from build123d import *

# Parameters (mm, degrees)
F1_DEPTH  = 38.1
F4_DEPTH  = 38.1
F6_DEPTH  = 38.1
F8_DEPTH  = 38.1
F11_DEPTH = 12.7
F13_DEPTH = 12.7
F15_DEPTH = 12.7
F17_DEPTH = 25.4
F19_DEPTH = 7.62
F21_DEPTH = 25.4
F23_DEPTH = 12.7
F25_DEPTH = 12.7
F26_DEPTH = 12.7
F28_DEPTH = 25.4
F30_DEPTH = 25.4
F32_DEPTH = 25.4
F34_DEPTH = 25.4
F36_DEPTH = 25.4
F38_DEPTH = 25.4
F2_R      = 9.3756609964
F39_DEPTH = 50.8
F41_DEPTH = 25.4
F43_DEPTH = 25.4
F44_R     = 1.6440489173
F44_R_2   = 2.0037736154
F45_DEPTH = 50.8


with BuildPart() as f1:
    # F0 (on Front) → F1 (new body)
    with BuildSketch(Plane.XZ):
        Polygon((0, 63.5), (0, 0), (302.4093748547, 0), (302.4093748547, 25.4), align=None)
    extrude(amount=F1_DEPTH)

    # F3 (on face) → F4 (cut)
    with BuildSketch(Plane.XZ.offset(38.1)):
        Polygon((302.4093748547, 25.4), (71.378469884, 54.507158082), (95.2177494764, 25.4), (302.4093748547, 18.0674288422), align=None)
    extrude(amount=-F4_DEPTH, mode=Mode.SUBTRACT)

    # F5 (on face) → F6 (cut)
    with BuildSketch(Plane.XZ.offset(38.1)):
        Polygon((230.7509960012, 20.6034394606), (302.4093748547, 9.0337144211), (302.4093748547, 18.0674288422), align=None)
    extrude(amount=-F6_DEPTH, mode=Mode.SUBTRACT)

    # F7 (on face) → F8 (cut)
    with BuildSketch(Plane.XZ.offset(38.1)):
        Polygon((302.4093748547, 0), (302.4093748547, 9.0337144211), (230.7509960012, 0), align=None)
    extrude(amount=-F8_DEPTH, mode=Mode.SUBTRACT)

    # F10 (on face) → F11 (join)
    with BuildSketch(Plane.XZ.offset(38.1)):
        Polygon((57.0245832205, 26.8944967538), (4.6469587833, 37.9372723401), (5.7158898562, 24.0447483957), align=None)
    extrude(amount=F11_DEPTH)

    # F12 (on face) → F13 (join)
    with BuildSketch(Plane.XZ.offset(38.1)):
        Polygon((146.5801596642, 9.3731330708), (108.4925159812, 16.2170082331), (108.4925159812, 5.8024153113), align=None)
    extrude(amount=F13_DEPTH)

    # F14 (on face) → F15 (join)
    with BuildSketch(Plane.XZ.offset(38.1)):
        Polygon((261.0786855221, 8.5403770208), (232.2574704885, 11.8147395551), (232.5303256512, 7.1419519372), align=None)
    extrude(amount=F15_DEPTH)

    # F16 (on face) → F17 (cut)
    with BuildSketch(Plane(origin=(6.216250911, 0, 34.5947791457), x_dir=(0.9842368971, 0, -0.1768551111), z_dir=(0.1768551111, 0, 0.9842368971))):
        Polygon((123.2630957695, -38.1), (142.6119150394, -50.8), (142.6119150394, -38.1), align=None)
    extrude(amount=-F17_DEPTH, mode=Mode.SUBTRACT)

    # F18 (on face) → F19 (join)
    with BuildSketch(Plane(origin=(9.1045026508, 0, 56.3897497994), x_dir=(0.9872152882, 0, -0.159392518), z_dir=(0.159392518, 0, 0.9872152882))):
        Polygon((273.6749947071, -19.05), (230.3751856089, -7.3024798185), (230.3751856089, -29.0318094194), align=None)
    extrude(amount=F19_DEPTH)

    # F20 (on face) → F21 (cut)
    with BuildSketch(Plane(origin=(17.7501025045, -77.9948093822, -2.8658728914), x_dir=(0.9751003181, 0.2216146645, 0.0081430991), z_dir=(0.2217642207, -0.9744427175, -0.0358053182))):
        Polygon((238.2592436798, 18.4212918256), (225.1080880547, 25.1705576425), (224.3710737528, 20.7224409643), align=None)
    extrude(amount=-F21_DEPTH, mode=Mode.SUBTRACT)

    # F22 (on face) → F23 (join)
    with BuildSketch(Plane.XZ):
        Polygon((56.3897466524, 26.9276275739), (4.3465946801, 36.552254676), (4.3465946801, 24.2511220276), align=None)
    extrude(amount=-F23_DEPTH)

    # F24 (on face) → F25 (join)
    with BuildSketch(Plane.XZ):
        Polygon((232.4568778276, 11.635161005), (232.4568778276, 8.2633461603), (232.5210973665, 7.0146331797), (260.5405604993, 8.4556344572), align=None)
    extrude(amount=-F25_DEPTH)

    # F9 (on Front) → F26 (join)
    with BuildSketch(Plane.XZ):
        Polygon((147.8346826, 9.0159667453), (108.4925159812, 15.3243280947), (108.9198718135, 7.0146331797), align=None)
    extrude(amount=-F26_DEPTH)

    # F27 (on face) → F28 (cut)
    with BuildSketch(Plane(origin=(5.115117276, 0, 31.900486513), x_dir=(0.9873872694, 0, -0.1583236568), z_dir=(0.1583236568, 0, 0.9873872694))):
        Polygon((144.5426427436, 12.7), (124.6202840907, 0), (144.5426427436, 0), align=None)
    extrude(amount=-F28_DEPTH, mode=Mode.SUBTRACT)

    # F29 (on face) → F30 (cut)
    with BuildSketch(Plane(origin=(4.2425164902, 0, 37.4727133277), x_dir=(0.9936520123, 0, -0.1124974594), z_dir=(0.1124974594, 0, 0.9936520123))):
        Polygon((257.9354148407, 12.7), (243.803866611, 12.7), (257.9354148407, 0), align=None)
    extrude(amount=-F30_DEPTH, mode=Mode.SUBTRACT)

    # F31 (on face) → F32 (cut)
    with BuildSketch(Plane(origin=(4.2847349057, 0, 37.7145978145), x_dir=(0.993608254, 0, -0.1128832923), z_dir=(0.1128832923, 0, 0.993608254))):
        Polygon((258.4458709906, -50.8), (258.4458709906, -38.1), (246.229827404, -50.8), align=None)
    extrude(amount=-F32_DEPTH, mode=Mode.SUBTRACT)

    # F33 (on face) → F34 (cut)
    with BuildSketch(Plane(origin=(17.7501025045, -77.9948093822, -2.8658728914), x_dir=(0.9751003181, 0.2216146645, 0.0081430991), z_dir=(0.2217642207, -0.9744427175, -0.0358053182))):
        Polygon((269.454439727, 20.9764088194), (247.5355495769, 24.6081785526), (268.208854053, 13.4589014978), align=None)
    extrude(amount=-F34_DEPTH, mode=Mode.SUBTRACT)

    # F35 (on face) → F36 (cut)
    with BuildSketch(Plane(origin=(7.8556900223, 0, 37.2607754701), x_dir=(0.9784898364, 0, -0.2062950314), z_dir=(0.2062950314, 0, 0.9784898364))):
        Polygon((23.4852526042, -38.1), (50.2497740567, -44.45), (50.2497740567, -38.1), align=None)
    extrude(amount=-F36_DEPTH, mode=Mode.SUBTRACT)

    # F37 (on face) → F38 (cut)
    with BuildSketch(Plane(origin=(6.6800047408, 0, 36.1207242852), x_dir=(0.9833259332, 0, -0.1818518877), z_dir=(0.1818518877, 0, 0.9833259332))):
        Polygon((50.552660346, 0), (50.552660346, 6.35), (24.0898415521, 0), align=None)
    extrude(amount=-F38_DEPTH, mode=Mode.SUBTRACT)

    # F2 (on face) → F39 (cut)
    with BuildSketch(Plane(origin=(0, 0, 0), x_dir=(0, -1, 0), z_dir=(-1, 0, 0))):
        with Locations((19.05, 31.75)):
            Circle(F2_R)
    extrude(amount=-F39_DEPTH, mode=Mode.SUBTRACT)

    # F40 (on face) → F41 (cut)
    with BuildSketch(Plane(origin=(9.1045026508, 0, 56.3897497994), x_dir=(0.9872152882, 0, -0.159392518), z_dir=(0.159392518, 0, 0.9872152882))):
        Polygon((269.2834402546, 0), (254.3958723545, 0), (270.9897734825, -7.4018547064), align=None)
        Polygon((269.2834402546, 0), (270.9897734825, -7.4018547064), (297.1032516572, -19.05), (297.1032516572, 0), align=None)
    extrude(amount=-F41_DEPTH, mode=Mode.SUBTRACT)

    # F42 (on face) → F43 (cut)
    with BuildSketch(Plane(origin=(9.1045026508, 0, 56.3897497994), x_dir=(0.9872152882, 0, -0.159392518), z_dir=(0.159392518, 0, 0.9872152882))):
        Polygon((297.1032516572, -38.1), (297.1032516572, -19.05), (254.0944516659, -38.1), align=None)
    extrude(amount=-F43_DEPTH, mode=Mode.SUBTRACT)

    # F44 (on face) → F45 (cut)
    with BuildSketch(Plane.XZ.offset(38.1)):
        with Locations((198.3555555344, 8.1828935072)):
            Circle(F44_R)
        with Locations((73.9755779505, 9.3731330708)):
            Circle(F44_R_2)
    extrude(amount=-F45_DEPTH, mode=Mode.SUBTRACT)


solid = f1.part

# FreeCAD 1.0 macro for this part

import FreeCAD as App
import Part
import Sketcher
Q = App.Units.Quantity


def add_polygon(sketch, points):
    """Adds a closed chain of lines whose ends are joined by coincident constraints."""
    first, n = sketch.GeometryCount, len(points)
    for a, b in zip(points, points[1:] + points[:1]):
        sketch.addGeometry(Part.LineSegment(App.Vector(*a, 0), App.Vector(*b, 0)), False)
    for i in range(n):
        sketch.addConstraint(Sketcher.Constraint("Coincident", first + i, 2, first + (i + 1) % n, 1))

doc = App.newDocument("Part")
body = doc.addObject("PartDesign::Body", "Body")

sketch1 = body.newObject("Sketcher::SketchObject", "Sketch")
sketch1.AttachmentSupport = (doc.getObject("XZ_Plane"), [""])
sketch1.MapMode = "FlatFace"
add_polygon(sketch1, [(0, 64), (0, 0), (302, 0), (302, 25)])
sketch1.addConstraint(Sketcher.Constraint("Vertical", 0))
sketch1.addConstraint(Sketcher.Constraint("Horizontal", 1))
sketch1.addConstraint(Sketcher.Constraint("Vertical", 2))
sketch1.addConstraint(Sketcher.Constraint("Coincident", 0, 2, -1, 1))
sketch1.addConstraint(Sketcher.Constraint("DistanceY", 2, 1, 2, 2, Q("1 in")))
sketch1.addConstraint(Sketcher.Constraint("Distance", 3, Q("12 in")))
sketch1.addConstraint(Sketcher.Constraint("DistanceY", 0, 2, 0, 1, Q("2.5 in")))
pad1 = body.newObject("PartDesign::Pad", "Pad")
pad1.Profile = sketch1
pad1.Length = Q("1.5 in")

sketch2 = body.newObject("Sketcher::SketchObject", "Sketch001")
sketch2.AttachmentSupport = (doc.getObject("XZ_Plane"), [""])
sketch2.MapMode = "FlatFace"
sketch2.AttachmentOffset = App.Placement(App.Vector(0, 0, 1.5 * 25.4), App.Rotation())
add_polygon(sketch2, [(302, 25), (71, 55), (95, 25), (302, 18)])
sketch2.addConstraint(Sketcher.Constraint("Vertical", 3))
sketch2.addConstraint(Sketcher.Constraint("Horizontal", 1, 2, 3, 2))
sketch2.addConstraint(Sketcher.Constraint("DistanceY", -1, 1, 1, 2, Q("1 in")))
sketch2.addConstraint(Sketcher.Constraint("DistanceY", 3, 1, 3, 2, Q("7.332571 mm")))
sketch2.addConstraint(Sketcher.Constraint("DistanceX", -1, 1, 0, 2, Q("71.37847 mm")))
sketch2.addConstraint(Sketcher.Constraint("DistanceY", -1, 1, 0, 2, Q("54.507158 mm")))
sketch2.addConstraint(Sketcher.Constraint("DistanceX", -1, 1, 1, 2, Q("95.217749 mm")))
sketch2.addConstraint(Sketcher.Constraint("Distance", 0, Q("232.857265 mm")))
pocket1 = body.newObject("PartDesign::Pocket", "Pocket")
pocket1.Profile = sketch2
pocket1.Length = Q("1.5 in")

sketch3 = body.newObject("Sketcher::SketchObject", "Sketch002")
sketch3.AttachmentSupport = (doc.getObject("XZ_Plane"), [""])
sketch3.MapMode = "FlatFace"
sketch3.AttachmentOffset = App.Placement(App.Vector(0, 0, 1.5 * 25.4), App.Rotation())
add_polygon(sketch3, [(231, 21), (302, 9), (302, 18)])
sketch3.addConstraint(Sketcher.Constraint("Vertical", 1))
sketch3.addConstraint(Sketcher.Constraint("Distance", 2, Q("71.70324 mm")))
sketch3.addConstraint(Sketcher.Constraint("DistanceY", 1, 1, 1, 2, Q("9.033714 mm")))
sketch3.addConstraint(Sketcher.Constraint("DistanceY", -1, 1, 1, 2, Q("18.067429 mm")))
sketch3.addConstraint(Sketcher.Constraint("DistanceY", -1, 1, 2, 2, Q("20.603439 mm")))
sketch3.addConstraint(Sketcher.Constraint("DistanceX", -1, 1, 0, 2, Q("302.409375 mm")))
pocket2 = body.newObject("PartDesign::Pocket", "Pocket001")
pocket2.Profile = sketch3
pocket2.Length = Q("1.5 in")

sketch4 = body.newObject("Sketcher::SketchObject", "Sketch003")
sketch4.AttachmentSupport = (doc.getObject("XZ_Plane"), [""])
sketch4.MapMode = "FlatFace"
sketch4.AttachmentOffset = App.Placement(App.Vector(0, 0, 1.5 * 25.4), App.Rotation())
add_polygon(sketch4, [(302, 0), (302, 9), (231, 0)])
sketch4.addConstraint(Sketcher.Constraint("Vertical", 0))
sketch4.addConstraint(Sketcher.Constraint("Horizontal", 2))
sketch4.addConstraint(Sketcher.Constraint("PointOnObject", 1, 2, -1))
sketch4.addConstraint(Sketcher.Constraint("DistanceX", 2, 1, 2, 2, Q("71.658379 mm")))
sketch4.addConstraint(Sketcher.Constraint("Distance", 1, Q("72.225558 mm")))
sketch4.addConstraint(Sketcher.Constraint("DistanceX", -1, 1, 0, 2, Q("302.409375 mm")))
pocket3 = body.newObject("PartDesign::Pocket", "Pocket002")
pocket3.Profile = sketch4
pocket3.Length = Q("1.5 in")

sketch5 = body.newObject("Sketcher::SketchObject", "Sketch004")
sketch5.AttachmentSupport = (doc.getObject("XZ_Plane"), [""])
sketch5.MapMode = "FlatFace"
sketch5.AttachmentOffset = App.Placement(App.Vector(0, 0, 1.5 * 25.4), App.Rotation())
add_polygon(sketch5, [(57, 27), (5, 38), (6, 24)])
sketch5.addConstraint(Sketcher.Constraint("Distance", 2, Q("51.387772 mm")))
sketch5.addConstraint(Sketcher.Constraint("DistanceX", -1, 1, 0, 2, Q("4.646959 mm")))
sketch5.addConstraint(Sketcher.Constraint("DistanceX", -1, 1, 1, 2, Q("5.71589 mm")))
sketch5.addConstraint(Sketcher.Constraint("DistanceY", -1, 1, 1, 2, Q("24.044748 mm")))
sketch5.addConstraint(Sketcher.Constraint("DistanceY", 1, 2, 2, 2, Q("2.849748 mm")))
sketch5.addConstraint(Sketcher.Constraint("Distance", 0, Q("53.529043 mm")))
pad2 = body.newObject("PartDesign::Pad", "Pad001")
pad2.Profile = sketch5
pad2.Length = Q("0.5 in")

sketch6 = body.newObject("Sketcher::SketchObject", "Sketch005")
sketch6.AttachmentSupport = (doc.getObject("XZ_Plane"), [""])
sketch6.MapMode = "FlatFace"
sketch6.AttachmentOffset = App.Placement(App.Vector(0, 0, 1.5 * 25.4), App.Rotation())
add_polygon(sketch6, [(147, 9), (108, 16), (108, 6)])
sketch6.addConstraint(Sketcher.Constraint("Vertical", 1))
sketch6.addConstraint(Sketcher.Constraint("Distance", 0, Q("38.697639 mm")))
sketch6.addConstraint(Sketcher.Constraint("DistanceY", 1, 2, 1, 1, Q("10.414593 mm")))
sketch6.addConstraint(Sketcher.Constraint("DistanceY", -1, 1, 0, 2, Q("16.217008 mm")))
sketch6.addConstraint(Sketcher.Constraint("DistanceX", -1, 1, 2, 2, Q("146.58016 mm")))
sketch6.addConstraint(Sketcher.Constraint("Distance", 2, Q("38.254655 mm")))
pad3 = body.newObject("PartDesign::Pad", "Pad002")
pad3.Profile = sketch6
pad3.Length = Q("0.5 in")

sketch7 = body.newObject("Sketcher::SketchObject", "Sketch006")
sketch7.AttachmentSupport = (doc.getObject("XZ_Plane"), [""])
sketch7.MapMode = "FlatFace"
sketch7.AttachmentOffset = App.Placement(App.Vector(0, 0, 1.5 * 25.4), App.Rotation())
add_polygon(sketch7, [(261.1, 8.5), (232.3, 11.8), (232.5, 7.1)])
sketch7.addConstraint(Sketcher.Constraint("Distance", 2, Q("28.58259 mm")))
sketch7.addConstraint(Sketcher.Constraint("DistanceX", -1, 1, 0, 2, Q("232.25747 mm")))
sketch7.addConstraint(Sketcher.Constraint("DistanceY", -1, 1, 0, 2, Q("11.81474 mm")))
sketch7.addConstraint(Sketcher.Constraint("DistanceY", -1, 1, 1, 2, Q("7.141952 mm")))
sketch7.addConstraint(Sketcher.Constraint("DistanceX", 1, 2, 2, 2, Q("28.54836 mm")))
sketch7.addConstraint(Sketcher.Constraint("Distance", 0, Q("29.006618 mm")))
pad4 = body.newObject("PartDesign::Pad", "Pad003")
pad4.Profile = sketch7
pad4.Length = Q("0.5 in")

sketch8 = body.newObject("Sketcher::SketchObject", "Sketch007")
sketch8.Placement = App.Placement(App.Vector(6.216251, 0, 34.594779), App.Rotation(App.Vector(0.984236897, 0, -0.176855111), App.Vector(0, 1, 0), App.Vector(0.176855111, 0, 0.984236897), "ZXY"))
add_polygon(sketch8, [(123, -38), (143, -51), (143, -38)])
sketch8.addConstraint(Sketcher.Constraint("Vertical", 1))
sketch8.addConstraint(Sketcher.Constraint("Horizontal", 2))
sketch8.addConstraint(Sketcher.Constraint("DistanceY", 1, 1, 1, 2, Q("0.5 in")))
sketch8.addConstraint(Sketcher.Constraint("DistanceY", 0, 2, -1, 1, Q("2 in")))
sketch8.addConstraint(Sketcher.Constraint("Distance", 0, Q("0.9111999 in")))
sketch8.addConstraint(Sketcher.Constraint("DistanceX", -1, 1, 0, 2, Q("142.611915 mm")))
pocket4 = body.newObject("PartDesign::Pocket", "Pocket003")
pocket4.Profile = sketch8
pocket4.Length = Q("1 in")

sketch9 = body.newObject("Sketcher::SketchObject", "Sketch008")
sketch9.Placement = App.Placement(App.Vector(9.104503, 0, 56.38975), App.Rotation(App.Vector(0.987215288, 0, -0.159392518), App.Vector(0, 1, 0), App.Vector(0.159392518, 0, 0.987215288), "ZXY"))
add_polygon(sketch9, [(274, -19), (230, -7), (230, -29)])
sketch9.addConstraint(Sketcher.Constraint("Vertical", 1))
sketch9.addConstraint(Sketcher.Constraint("DistanceY", 2, 2, -1, 1, Q("0.75 in")))
sketch9.addConstraint(Sketcher.Constraint("DistanceY", 1, 2, 1, 1, Q("21.72933 mm")))
sketch9.addConstraint(Sketcher.Constraint("Distance", 2, Q("44.435459 mm")))
sketch9.addConstraint(Sketcher.Constraint("DistanceY", 0, 2, -1, 1, Q("7.30248 mm")))
sketch9.addConstraint(Sketcher.Constraint("DistanceX", -1, 1, 0, 2, Q("230.375186 mm")))
pad5 = body.newObject("PartDesign::Pad", "Pad004")
pad5.Profile = sketch9
pad5.Length = Q("0.3 in")

sketch10 = body.newObject("Sketcher::SketchObject", "Sketch009")
sketch10.Placement = App.Placement(App.Vector(17.750103, -77.994809, -2.865873), App.Rotation(App.Vector(0.975100318, 0.221614664, 0.008143099), App.Vector(0, -0.036719625, 0.999325607), App.Vector(0.221764221, -0.974442717, -0.035805318), "ZXY"))
add_polygon(sketch10, [(238.3, 18.4), (225.1, 25.2), (224.4, 20.7)])
sketch10.addConstraint(Sketcher.Constraint("Perpendicular", 1, 2))
sketch10.addConstraint(Sketcher.Constraint("Distance", 0, Q("14.781931 mm")))
sketch10.addConstraint(Sketcher.Constraint("Distance", 1, Q("4.508762 mm")))
sketch10.addConstraint(Sketcher.Constraint("DistanceY", -1, 1, 1, 2, Q("20.722441 mm")))
sketch10.addConstraint(Sketcher.Constraint("DistanceY", -1, 1, 2, 2, Q("18.421292 mm")))
sketch10.addConstraint(Sketcher.Constraint("DistanceX", -1, 1, 0, 2, Q("225.108088 mm")))
pocket5 = body.newObject("PartDesign::Pocket", "Pocket004")
pocket5.Profile = sketch10
pocket5.Length = Q("1 in")

sketch11 = body.newObject("Sketcher::SketchObject", "Sketch010")
sketch11.AttachmentSupport = (doc.getObject("XZ_Plane"), [""])
sketch11.MapMode = "FlatFace"
add_polygon(sketch11, [(56, 27), (4, 37), (4, 24)])
sketch11.addConstraint(Sketcher.Constraint("Vertical", 1))
sketch11.addConstraint(Sketcher.Constraint("Distance", 2, Q("52.111931 mm")))
sketch11.addConstraint(Sketcher.Constraint("DistanceY", 1, 2, 1, 1, Q("12.301133 mm")))
sketch11.addConstraint(Sketcher.Constraint("DistanceX", 1, 2, 2, 2, Q("52.043152 mm")))
sketch11.addConstraint(Sketcher.Constraint("DistanceX", -1, 1, 0, 2, Q("4.346595 mm")))
sketch11.addConstraint(Sketcher.Constraint("DistanceY", -1, 1, 0, 2, Q("36.552255 mm")))
pad6 = body.newObject("PartDesign::Pad", "Pad005")
pad6.Profile = sketch11
pad6.Length = Q("0.5 in")
pad6.Reversed = True

sketch12 = body.newObject("Sketcher::SketchObject", "Sketch011")
sketch12.AttachmentSupport = (doc.getObject("XZ_Plane"), [""])
sketch12.MapMode = "FlatFace"
add_polygon(sketch12, [(232.456878, 11.635161), (232.456878, 8.263346), (232.521097, 7.014633), (260.54056, 8.455634)])
sketch12.addConstraint(Sketcher.Constraint("Vertical", 0))
sketch12.addConstraint(Sketcher.Constraint("DistanceY", 1, 2, 2, 2, Q("1.441001 mm")))
sketch12.addConstraint(Sketcher.Constraint("DistanceY", 0, 2, 0, 1, Q("3.371815 mm")))
sketch12.addConstraint(Sketcher.Constraint("DistanceX", -1, 1, 2, 2, Q("260.54056 mm")))
sketch12.addConstraint(Sketcher.Constraint("DistanceY", -1, 1, 3, 2, Q("11.635161 mm")))
sketch12.addConstraint(Sketcher.Constraint("DistanceX", 0, 2, 1, 2, Q("0.06422 mm")))
sketch12.addConstraint(Sketcher.Constraint("DistanceY", 0, 2, 2, 2, Q("0.192288 mm")))
sketch12.addConstraint(Sketcher.Constraint("Distance", 2, Q("28.056493 mm")))
pad7 = body.newObject("PartDesign::Pad", "Pad006")
pad7.Profile = sketch12
pad7.Length = Q("0.5 in")
pad7.Reversed = True

sketch13 = body.newObject("Sketcher::SketchObject", "Sketch012")
sketch13.AttachmentSupport = (doc.getObject("XZ_Plane"), [""])
sketch13.MapMode = "FlatFace"
add_polygon(sketch13, [(148, 9), (108, 15), (109, 7)])
sketch13.addConstraint(Sketcher.Constraint("Perpendicular", 1, 2))
sketch13.addConstraint(Sketcher.Constraint("Distance", 2, Q("38.96624 mm")))
sketch13.addConstraint(Sketcher.Constraint("DistanceY", -1, 1, 0, 2, Q("15.324328 mm")))
sketch13.addConstraint(Sketcher.Constraint("DistanceX", -1, 1, 1, 2, Q("108.919872 mm")))
sketch13.addConstraint(Sketcher.Constraint("DistanceX", 1, 2, 2, 2, Q("38.914811 mm")))
sketch13.addConstraint(Sketcher.Constraint("DistanceY", 2, 2, 0, 2, Q("6.308361 mm")))
pad8 = body.newObject("PartDesign::Pad", "Pad007")
pad8.Profile = sketch13
pad8.Length = Q("0.5 in")
pad8.Reversed = True

sketch14 = body.newObject("Sketcher::SketchObject", "Sketch013")
sketch14.Placement = App.Placement(App.Vector(5.115117, 0, 31.900487), App.Rotation(App.Vector(0.987387269, 0, -0.158323657), App.Vector(0, 0.999999999, 0), App.Vector(0.158323657, 0, 0.987387269), "ZXY"))
add_polygon(sketch14, [(145, 13), (125, 0), (145, 0)])
sketch14.addConstraint(Sketcher.Constraint("Horizontal", 1))
sketch14.addConstraint(Sketcher.Constraint("Vertical", 2))
sketch14.addConstraint(Sketcher.Constraint("PointOnObject", 0, 2, -1))
sketch14.addConstraint(Sketcher.Constraint("DistanceY", 2, 1, 2, 2, Q("0.5 in")))
sketch14.addConstraint(Sketcher.Constraint("DistanceX", 1, 1, 1, 2, Q("19.922359 mm")))
sketch14.addConstraint(Sketcher.Constraint("DistanceX", -1, 1, 0, 2, Q("124.620284 mm")))
pocket6 = body.newObject("PartDesign::Pocket", "Pocket005")
pocket6.Profile = sketch14
pocket6.Length = Q("1 in")

sketch15 = body.newObject("Sketcher::SketchObject", "Sketch014")
sketch15.Placement = App.Placement(App.Vector(4.242516, 0, 37.472713), App.Rotation(App.Vector(0.993652012, 0, -0.112497459), App.Vector(0, 0.999999999, 0), App.Vector(0.112497459, 0, 0.993652012), "ZXY"))
add_polygon(sketch15, [(258, 13), (244, 13), (258, 0)])
sketch15.addConstraint(Sketcher.Constraint("Horizontal", 0))
sketch15.addConstraint(Sketcher.Constraint("Vertical", 2))
sketch15.addConstraint(Sketcher.Constraint("PointOnObject", 1, 2, -1))
sketch15.addConstraint(Sketcher.Constraint("DistanceY", 2, 1, 2, 2, Q("0.5 in")))
sketch15.addConstraint(Sketcher.Constraint("DistanceX", 0, 2, 0, 1, Q("14.131548 mm")))
sketch15.addConstraint(Sketcher.Constraint("DistanceX", -1, 1, 0, 2, Q("243.803866 mm")))
pocket7 = body.newObject("PartDesign::Pocket", "Pocket006")
pocket7.Profile = sketch15
pocket7.Length = Q("1 in")

sketch16 = body.newObject("Sketcher::SketchObject", "Sketch015")
sketch16.Placement = App.Placement(App.Vector(4.284735, 0, 37.714598), App.Rotation(App.Vector(0.993608254, 0, -0.112883292), App.Vector(0, 1, 0), App.Vector(0.112883292, 0, 0.993608254), "ZXY"))
add_polygon(sketch16, [(258, -51), (258, -38), (246, -51)])
sketch16.addConstraint(Sketcher.Constraint("Vertical", 0))
sketch16.addConstraint(Sketcher.Constraint("Horizontal", 2))
sketch16.addConstraint(Sketcher.Constraint("DistanceY", 0, 1, 0, 2, Q("0.5 in")))
sketch16.addConstraint(Sketcher.Constraint("DistanceY", 1, 2, -1, 1, Q("2 in")))
sketch16.addConstraint(Sketcher.Constraint("DistanceX", 2, 1, 2, 2, Q("12.216044 mm")))
sketch16.addConstraint(Sketcher.Constraint("DistanceX", -1, 1, 0, 2, Q("258.445871 mm")))
pocket8 = body.newObject("PartDesign::Pocket", "Pocket007")
pocket8.Profile = sketch16
pocket8.Length = Q("1 in")

sketch17 = body.newObject("Sketcher::SketchObject", "Sketch016")
sketch17.Placement = App.Placement(App.Vector(17.750103, -77.994809, -2.865873), App.Rotation(App.Vector(0.975100318, 0.221614664, 0.008143099), App.Vector(0, -0.036719625, 0.999325607), App.Vector(0.221764221, -0.974442717, -0.035805318), "ZXY"))
add_polygon(sketch17, [(269, 21), (248, 25), (268, 13)])
sketch17.addConstraint(Sketcher.Constraint("Perpendicular", 0, 2))
sketch17.addConstraint(Sketcher.Constraint("Distance", 2, Q("0.3 in")))
sketch17.addConstraint(Sketcher.Constraint("DistanceY", -1, 1, 1, 2, Q("13.458901 mm")))
sketch17.addConstraint(Sketcher.Constraint("Distance", 0, Q("22.217729 mm")))
sketch17.addConstraint(Sketcher.Constraint("DistanceX", -1, 1, 0, 2, Q("247.535549 mm")))
sketch17.addConstraint(Sketcher.Constraint("DistanceY", -1, 1, 0, 2, Q("24.608179 mm")))
pocket9 = body.newObject("PartDesign::Pocket", "Pocket008")
pocket9.Profile = sketch17
pocket9.Length = Q("1 in")

sketch18 = body.newObject("Sketcher::SketchObject", "Sketch017")
sketch18.Placement = App.Placement(App.Vector(7.85569, 0, 37.260775), App.Rotation(App.Vector(0.978489836, 0, -0.206295031), App.Vector(0, 0.999999999, 0), App.Vector(0.206295031, 0, 0.978489836), "ZXY"))
add_polygon(sketch18, [(23, -38), (50, -44), (50, -38)])
sketch18.addConstraint(Sketcher.Constraint("Vertical", 1))
sketch18.addConstraint(Sketcher.Constraint("Horizontal", 2))
sketch18.addConstraint(Sketcher.Constraint("DistanceY", 1, 1, 1, 2, Q("0.25 in")))
sketch18.addConstraint(Sketcher.Constraint("DistanceY", 1, 2, -1, 1, Q("1.5 in")))
sketch18.addConstraint(Sketcher.Constraint("DistanceX", 2, 2, 2, 1, Q("26.764521 mm")))
sketch18.addConstraint(Sketcher.Constraint("DistanceX", -1, 1, 0, 2, Q("50.249774 mm")))
pocket10 = body.newObject("PartDesign::Pocket", "Pocket009")
pocket10.Profile = sketch18
pocket10.Length = Q("1 in")

sketch19 = body.newObject("Sketcher::SketchObject", "Sketch018")
sketch19.Placement = App.Placement(App.Vector(6.680005, 0, 36.120724), App.Rotation(App.Vector(0.983325933, 0, -0.181851888), App.Vector(0, 1, 0), App.Vector(0.181851888, 0, 0.983325933), "ZXY"))
add_polygon(sketch19, [(51, 0), (51, 6), (24, 0)])
sketch19.addConstraint(Sketcher.Constraint("Vertical", 0))
sketch19.addConstraint(Sketcher.Constraint("Horizontal", 2))
sketch19.addConstraint(Sketcher.Constraint("PointOnObject", 1, 2, -1))
sketch19.addConstraint(Sketcher.Constraint("DistanceY", 0, 1, 0, 2, Q("0.25 in")))
sketch19.addConstraint(Sketcher.Constraint("DistanceX", 2, 1, 2, 2, Q("26.462819 mm")))
sketch19.addConstraint(Sketcher.Constraint("DistanceX", -1, 1, 0, 2, Q("50.55266 mm")))
pocket11 = body.newObject("PartDesign::Pocket", "Pocket010")
pocket11.Profile = sketch19
pocket11.Length = Q("1 in")

sketch20 = body.newObject("Sketcher::SketchObject", "Sketch019")
sketch20.AttachmentSupport = (doc.getObject("YZ_Plane"), [""])
sketch20.MapMode = "FlatFace"
sketch20.addGeometry(Part.Circle(App.Vector(-19, 32, 0), App.Vector(0, 0, 1), 9), False)
sketch20.addConstraint(Sketcher.Constraint("DistanceX", 0, 3, -1, 1, Q("0.75 in")))
sketch20.addConstraint(Sketcher.Constraint("DistanceY", -1, 1, 0, 3, Q("1.25 in")))
sketch20.addConstraint(Sketcher.Constraint("Diameter", 0, Q("18.751322 mm")))
pocket12 = body.newObject("PartDesign::Pocket", "Pocket011")
pocket12.Profile = sketch20
pocket12.Length = Q("2 in")
pocket12.Reversed = True

sketch21 = body.newObject("Sketcher::SketchObject", "Sketch020")
sketch21.Placement = App.Placement(App.Vector(9.104503, 0, 56.38975), App.Rotation(App.Vector(0.987215288, 0, -0.159392518), App.Vector(0, 1, 0), App.Vector(0.159392518, 0, 0.987215288), "ZXY"))
add_polygon(sketch21, [(254, 0), (271, -7), (297, -19), (297, 0)])
sketch21.addConstraint(Sketcher.Constraint("Vertical", 2))
sketch21.addConstraint(Sketcher.Constraint("Horizontal", 3))
sketch21.addConstraint(Sketcher.Constraint("PointOnObject", 2, 2, -1))
sketch21.addConstraint(Sketcher.Constraint("Parallel", 0, 1))
sketch21.addConstraint(Sketcher.Constraint("DistanceY", 2, 1, 2, 2, Q("0.75 in")))
sketch21.addConstraint(Sketcher.Constraint("DistanceX", 3, 2, 3, 1, Q("42.707379 mm")))
sketch21.addConstraint(Sketcher.Constraint("DistanceX", 3, 2, 0, 2, Q("16.593901 mm")))
sketch21.addConstraint(Sketcher.Constraint("DistanceX", -1, 1, 1, 2, Q("297.103252 mm")))
pocket13 = body.newObject("PartDesign::Pocket", "Pocket012")
pocket13.Profile = sketch21
pocket13.Length = Q("1 in")

sketch22 = body.newObject("Sketcher::SketchObject", "Sketch021")
sketch22.Placement = App.Placement(App.Vector(9.104503, 0, 56.38975), App.Rotation(App.Vector(0.987215288, 0, -0.159392518), App.Vector(0, 1, 0), App.Vector(0.159392518, 0, 0.987215288), "ZXY"))
add_polygon(sketch22, [(297, -38), (297, -19), (254, -38)])
sketch22.addConstraint(Sketcher.Constraint("Vertical", 0))
sketch22.addConstraint(Sketcher.Constraint("Horizontal", 2))
sketch22.addConstraint(Sketcher.Constraint("DistanceY", 0, 1, 0, 2, Q("0.75 in")))
sketch22.addConstraint(Sketcher.Constraint("DistanceY", 1, 2, -1, 1, Q("1.5 in")))
sketch22.addConstraint(Sketcher.Constraint("DistanceX", 2, 1, 2, 2, Q("43.0088 mm")))
sketch22.addConstraint(Sketcher.Constraint("DistanceX", -1, 1, 0, 2, Q("297.103252 mm")))
pocket14 = body.newObject("PartDesign::Pocket", "Pocket013")
pocket14.Profile = sketch22
pocket14.Length = Q("1 in")

sketch23 = body.newObject("Sketcher::SketchObject", "Sketch022")
sketch23.AttachmentSupport = (doc.getObject("XZ_Plane"), [""])
sketch23.MapMode = "FlatFace"
sketch23.AttachmentOffset = App.Placement(App.Vector(0, 0, 1.5 * 25.4), App.Rotation())
sketch23.addGeometry(Part.Circle(App.Vector(198.4, 8.2, 0), App.Vector(0, 0, 1), 1.6), False)
sketch23.addGeometry(Part.Circle(App.Vector(74, 9.4, 0), App.Vector(0, 0, 1), 2), False)
sketch23.addConstraint(Sketcher.Constraint("Diameter", 0, Q("3.288098 mm")))
sketch23.addConstraint(Sketcher.Constraint("Diameter", 1, Q("4.007547 mm")))
sketch23.addConstraint(Sketcher.Constraint("DistanceY", 0, 3, 1, 3, Q("1.19024 mm")))
sketch23.addConstraint(Sketcher.Constraint("DistanceX", -1, 1, 0, 3, Q("198.355556 mm")))
sketch23.addConstraint(Sketcher.Constraint("DistanceY", -1, 1, 0, 3, Q("8.182894 mm")))
sketch23.addConstraint(Sketcher.Constraint("DistanceX", -1, 1, 1, 3, Q("73.975578 mm")))
pocket15 = body.newObject("PartDesign::Pocket", "Pocket014")
pocket15.Profile = sketch23
pocket15.Length = Q("2 in")

doc.recompute()
